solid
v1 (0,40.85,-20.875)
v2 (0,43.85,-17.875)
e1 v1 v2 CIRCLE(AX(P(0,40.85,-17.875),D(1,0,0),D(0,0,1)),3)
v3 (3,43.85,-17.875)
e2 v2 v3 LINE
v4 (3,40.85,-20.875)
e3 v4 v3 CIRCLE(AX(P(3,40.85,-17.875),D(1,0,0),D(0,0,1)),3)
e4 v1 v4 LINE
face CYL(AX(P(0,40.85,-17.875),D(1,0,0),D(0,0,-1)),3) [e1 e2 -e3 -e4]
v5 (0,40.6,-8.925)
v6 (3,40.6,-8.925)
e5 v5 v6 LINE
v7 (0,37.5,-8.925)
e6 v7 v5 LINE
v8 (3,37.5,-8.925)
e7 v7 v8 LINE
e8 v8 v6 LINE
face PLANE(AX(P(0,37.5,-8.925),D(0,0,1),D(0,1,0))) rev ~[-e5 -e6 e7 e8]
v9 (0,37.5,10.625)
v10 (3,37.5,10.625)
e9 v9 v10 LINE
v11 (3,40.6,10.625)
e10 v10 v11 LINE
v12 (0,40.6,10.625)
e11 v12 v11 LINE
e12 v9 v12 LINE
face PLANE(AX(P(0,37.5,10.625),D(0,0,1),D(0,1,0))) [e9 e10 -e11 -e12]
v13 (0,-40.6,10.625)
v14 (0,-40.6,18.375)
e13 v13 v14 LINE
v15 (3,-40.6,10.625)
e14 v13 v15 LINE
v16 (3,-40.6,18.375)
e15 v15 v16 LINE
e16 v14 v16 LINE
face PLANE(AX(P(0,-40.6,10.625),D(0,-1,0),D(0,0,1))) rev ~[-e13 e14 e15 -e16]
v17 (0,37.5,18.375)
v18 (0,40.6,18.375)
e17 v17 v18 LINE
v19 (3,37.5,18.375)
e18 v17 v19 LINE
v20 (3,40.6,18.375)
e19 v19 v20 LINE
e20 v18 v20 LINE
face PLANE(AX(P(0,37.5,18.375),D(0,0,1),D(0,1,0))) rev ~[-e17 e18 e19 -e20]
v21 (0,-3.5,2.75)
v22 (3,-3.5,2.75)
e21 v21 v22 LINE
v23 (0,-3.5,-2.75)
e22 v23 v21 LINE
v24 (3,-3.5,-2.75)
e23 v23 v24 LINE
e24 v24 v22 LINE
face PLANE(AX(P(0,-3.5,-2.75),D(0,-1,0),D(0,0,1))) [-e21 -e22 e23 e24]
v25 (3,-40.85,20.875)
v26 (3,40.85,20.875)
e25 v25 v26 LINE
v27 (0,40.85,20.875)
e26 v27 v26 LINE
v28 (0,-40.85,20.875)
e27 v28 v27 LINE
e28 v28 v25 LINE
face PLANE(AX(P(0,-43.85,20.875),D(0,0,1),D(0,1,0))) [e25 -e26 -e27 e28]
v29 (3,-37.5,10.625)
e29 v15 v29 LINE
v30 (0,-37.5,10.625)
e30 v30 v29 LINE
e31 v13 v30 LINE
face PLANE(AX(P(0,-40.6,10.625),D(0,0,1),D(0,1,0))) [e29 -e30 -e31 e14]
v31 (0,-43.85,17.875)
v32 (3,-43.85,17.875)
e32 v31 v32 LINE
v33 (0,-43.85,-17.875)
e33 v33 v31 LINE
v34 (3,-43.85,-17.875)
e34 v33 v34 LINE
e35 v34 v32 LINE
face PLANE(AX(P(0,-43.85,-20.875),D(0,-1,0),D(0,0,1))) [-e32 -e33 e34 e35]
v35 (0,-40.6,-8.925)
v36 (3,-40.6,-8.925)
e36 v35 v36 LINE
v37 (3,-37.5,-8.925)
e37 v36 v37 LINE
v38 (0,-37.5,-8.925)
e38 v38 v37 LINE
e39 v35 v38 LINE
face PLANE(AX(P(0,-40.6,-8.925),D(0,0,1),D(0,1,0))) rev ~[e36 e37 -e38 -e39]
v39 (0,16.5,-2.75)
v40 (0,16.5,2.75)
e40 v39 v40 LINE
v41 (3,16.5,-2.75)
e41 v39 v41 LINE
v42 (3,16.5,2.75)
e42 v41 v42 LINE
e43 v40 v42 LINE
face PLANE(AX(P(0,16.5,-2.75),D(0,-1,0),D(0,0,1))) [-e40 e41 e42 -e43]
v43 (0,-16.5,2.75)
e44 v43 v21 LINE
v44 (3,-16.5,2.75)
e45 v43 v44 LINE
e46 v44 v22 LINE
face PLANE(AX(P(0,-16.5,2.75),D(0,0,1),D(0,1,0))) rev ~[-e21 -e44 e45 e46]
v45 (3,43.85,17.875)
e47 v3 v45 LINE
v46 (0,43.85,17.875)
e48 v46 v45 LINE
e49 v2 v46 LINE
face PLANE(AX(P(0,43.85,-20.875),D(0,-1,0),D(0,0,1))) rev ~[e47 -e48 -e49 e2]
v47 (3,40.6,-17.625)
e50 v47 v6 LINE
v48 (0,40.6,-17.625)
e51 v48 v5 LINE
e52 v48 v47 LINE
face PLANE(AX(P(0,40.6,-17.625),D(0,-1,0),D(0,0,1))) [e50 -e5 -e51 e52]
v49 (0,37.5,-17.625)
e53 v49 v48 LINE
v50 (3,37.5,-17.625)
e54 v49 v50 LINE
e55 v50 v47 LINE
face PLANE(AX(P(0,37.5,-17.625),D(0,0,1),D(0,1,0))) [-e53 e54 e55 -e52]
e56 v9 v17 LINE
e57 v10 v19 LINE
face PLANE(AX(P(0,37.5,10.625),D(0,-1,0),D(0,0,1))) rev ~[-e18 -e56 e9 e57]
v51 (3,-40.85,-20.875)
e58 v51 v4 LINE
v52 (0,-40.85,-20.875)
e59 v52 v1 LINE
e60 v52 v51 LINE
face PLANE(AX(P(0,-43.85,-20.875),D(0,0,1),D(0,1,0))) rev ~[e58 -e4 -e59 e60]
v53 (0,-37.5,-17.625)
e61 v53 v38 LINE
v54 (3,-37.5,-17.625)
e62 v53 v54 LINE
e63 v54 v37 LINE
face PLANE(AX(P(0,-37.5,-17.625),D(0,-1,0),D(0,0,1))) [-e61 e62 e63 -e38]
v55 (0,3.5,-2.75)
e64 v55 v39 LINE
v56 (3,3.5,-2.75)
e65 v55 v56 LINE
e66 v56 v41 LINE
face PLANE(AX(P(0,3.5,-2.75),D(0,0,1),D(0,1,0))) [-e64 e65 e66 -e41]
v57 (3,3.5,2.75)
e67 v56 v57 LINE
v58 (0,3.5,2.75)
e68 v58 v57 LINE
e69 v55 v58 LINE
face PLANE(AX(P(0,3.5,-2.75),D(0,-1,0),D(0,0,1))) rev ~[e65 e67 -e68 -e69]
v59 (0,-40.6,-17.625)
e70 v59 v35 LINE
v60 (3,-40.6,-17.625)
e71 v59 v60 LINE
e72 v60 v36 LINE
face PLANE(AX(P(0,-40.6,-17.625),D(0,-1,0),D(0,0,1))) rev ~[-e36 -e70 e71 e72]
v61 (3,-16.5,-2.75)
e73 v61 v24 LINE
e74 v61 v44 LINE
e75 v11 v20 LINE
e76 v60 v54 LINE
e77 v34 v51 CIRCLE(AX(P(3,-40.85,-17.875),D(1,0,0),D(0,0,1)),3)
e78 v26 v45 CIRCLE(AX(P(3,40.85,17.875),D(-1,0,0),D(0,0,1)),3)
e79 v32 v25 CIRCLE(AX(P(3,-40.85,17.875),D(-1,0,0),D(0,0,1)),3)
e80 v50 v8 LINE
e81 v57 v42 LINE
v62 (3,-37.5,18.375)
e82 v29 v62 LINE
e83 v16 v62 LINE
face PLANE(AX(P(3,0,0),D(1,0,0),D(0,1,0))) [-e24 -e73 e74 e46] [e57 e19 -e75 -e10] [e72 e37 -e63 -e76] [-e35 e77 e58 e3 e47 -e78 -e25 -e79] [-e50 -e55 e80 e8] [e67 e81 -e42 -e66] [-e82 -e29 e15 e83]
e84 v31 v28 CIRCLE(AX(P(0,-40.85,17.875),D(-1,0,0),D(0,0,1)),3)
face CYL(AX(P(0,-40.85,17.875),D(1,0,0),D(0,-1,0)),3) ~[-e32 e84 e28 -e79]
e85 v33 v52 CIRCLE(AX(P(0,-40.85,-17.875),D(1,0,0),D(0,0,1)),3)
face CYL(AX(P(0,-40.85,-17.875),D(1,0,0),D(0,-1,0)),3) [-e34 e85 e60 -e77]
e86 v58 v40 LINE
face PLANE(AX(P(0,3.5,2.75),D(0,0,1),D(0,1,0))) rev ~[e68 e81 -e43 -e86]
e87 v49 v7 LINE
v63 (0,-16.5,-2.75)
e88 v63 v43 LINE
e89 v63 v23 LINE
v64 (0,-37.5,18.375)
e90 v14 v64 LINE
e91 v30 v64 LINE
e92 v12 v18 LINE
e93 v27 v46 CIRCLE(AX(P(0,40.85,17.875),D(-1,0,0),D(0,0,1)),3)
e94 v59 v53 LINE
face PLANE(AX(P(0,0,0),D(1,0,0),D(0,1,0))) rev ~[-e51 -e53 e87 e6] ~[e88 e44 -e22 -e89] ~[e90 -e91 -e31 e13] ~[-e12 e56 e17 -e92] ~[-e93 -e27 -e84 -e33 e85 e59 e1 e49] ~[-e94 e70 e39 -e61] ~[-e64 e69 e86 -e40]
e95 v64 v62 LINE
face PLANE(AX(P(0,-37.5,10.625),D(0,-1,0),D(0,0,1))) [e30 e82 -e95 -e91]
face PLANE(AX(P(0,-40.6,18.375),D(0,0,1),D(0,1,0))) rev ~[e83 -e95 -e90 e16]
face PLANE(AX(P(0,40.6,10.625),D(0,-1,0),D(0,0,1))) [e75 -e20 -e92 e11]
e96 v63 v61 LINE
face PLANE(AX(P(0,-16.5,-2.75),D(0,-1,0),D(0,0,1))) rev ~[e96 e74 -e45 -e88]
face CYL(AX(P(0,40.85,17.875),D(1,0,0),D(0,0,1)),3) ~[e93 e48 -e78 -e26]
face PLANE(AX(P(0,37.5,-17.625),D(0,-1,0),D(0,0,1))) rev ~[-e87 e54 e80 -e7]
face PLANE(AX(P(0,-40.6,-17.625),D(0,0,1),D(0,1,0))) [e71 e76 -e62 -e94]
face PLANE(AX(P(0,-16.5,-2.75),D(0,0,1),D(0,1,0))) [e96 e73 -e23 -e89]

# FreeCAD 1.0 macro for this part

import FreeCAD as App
import Part
import Sketcher


def edges_at(feature, points):
    """Names of the edges that pass closest to the given points."""
    edges = feature.Shape.Edges
    near = lambda p: min(range(len(edges)), key=lambda i: edges[i].distToShape(Part.Vertex(*p))[0])
    return sorted({f"Edge{near(p) + 1}" for p in points})


def add_polygon(sketch, points):
    """Adds a closed chain of lines whose ends are joined by coincident constraints."""
    first, n = sketch.GeometryCount, len(points)
    for a, b in zip(points, points[1:] + points[:1]):
        sketch.addGeometry(Part.LineSegment(App.Vector(*a, 0), App.Vector(*b, 0)), False)
    for i in range(n):
        sketch.addConstraint(Sketcher.Constraint("Coincident", first + i, 2, first + (i + 1) % n, 1))

doc = App.newDocument("Part")
body = doc.addObject("PartDesign::Body", "Body")

sketch1 = body.newObject("Sketcher::SketchObject", "Sketch")
sketch1.AttachmentSupport = (doc.getObject("YZ_Plane"), [""])
sketch1.MapMode = "FlatFace"
add_polygon(sketch1, [(-43.9, 20.9), (-43.9, -20.9), (43.9, -20.9), (43.9, 20.9)])
add_polygon(sketch1, [(-37.5, -17.6), (-40.6, -17.6), (-40.6, -8.9), (-37.5, -8.9)])
add_polygon(sketch1, [(-3.5, -2.8), (-16.5, -2.8), (-16.5, 2.8), (-3.5, 2.8)])
add_polygon(sketch1, [(40.6, -17.6), (37.5, -17.6), (37.5, -8.9), (40.6, -8.9)])
add_polygon(sketch1, [(16.5, -2.8), (3.5, -2.8), (3.5, 2.8), (16.5, 2.8)])
add_polygon(sketch1, [(-37.5, 10.6), (-40.6, 10.6), (-40.6, 18.4), (-37.5, 18.4)])
add_polygon(sketch1, [(40.6, 10.6), (37.5, 10.6), (37.5, 18.4), (40.6, 18.4)])
sketch1.addConstraint([
    Sketcher.Constraint("Vertical", 0),
    Sketcher.Constraint("Horizontal", 1),
    Sketcher.Constraint("Vertical", 2),
    Sketcher.Constraint("Horizontal", 3),
    Sketcher.Constraint("Horizontal", 4),
    Sketcher.Constraint("Vertical", 5),
    Sketcher.Constraint("Horizontal", 6),
    Sketcher.Constraint("Vertical", 7),
    Sketcher.Constraint("Horizontal", 8),
    Sketcher.Constraint("Vertical", 9),
    Sketcher.Constraint("Horizontal", 10),
    Sketcher.Constraint("Vertical", 11),
    Sketcher.Constraint("Horizontal", 12),
    Sketcher.Constraint("Vertical", 13),
    Sketcher.Constraint("Horizontal", 14),
    Sketcher.Constraint("Vertical", 15),
    Sketcher.Constraint("Horizontal", 16),
    Sketcher.Constraint("Vertical", 17),
    Sketcher.Constraint("Horizontal", 18),
    Sketcher.Constraint("Vertical", 19),
    Sketcher.Constraint("Horizontal", 20),
    Sketcher.Constraint("Vertical", 21),
    Sketcher.Constraint("Horizontal", 22),
    Sketcher.Constraint("Vertical", 23),
    Sketcher.Constraint("Horizontal", 24),
    Sketcher.Constraint("Vertical", 25),
    Sketcher.Constraint("Horizontal", 26),
    Sketcher.Constraint("Vertical", 27),
    Sketcher.Constraint("Symmetric", 0, 2, 2, 2, -1, 1),
    Sketcher.Constraint("Symmetric", 10, 2, 16, 2, -1, 1),
    Sketcher.Constraint("Symmetric", 8, 2, 18, 2, -1, 1),
    Sketcher.Constraint("Symmetric", 7, 2, 12, 2, -2),
    Sketcher.Constraint("Symmetric", 5, 2, 14, 2, -2),
    Sketcher.Constraint("Symmetric", 23, 2, 24, 2, -2),
    Sketcher.Constraint("Symmetric", 21, 2, 26, 2, -2),
    Sketcher.Constraint("Horizontal", 11, 2, 16, 2),
    Sketcher.Constraint("Vertical", 5, 2, 20, 2),
    Sketcher.Constraint("Vertical", 7, 2, 22, 2),
    Sketcher.Constraint("DistanceX", 8, 2, 8, 1, 13.0),
    Sketcher.Constraint("DistanceX", 1, 1, 1, 2, 87.7),
    Sketcher.Constraint("DistanceX", 4, 2, 4, 1, 3.1),
    Sketcher.Constraint("DistanceY", 5, 1, 5, 2, 8.7),
    Sketcher.Constraint("DistanceY", 9, 1, 9, 2, 5.5),
    Sketcher.Constraint("DistanceX", 6, 2, 8, 2, 21.0),
    Sketcher.Constraint("DistanceX", 11, 2, 12, 2, 41.0),
    Sketcher.Constraint("DistanceY", 0, 2, 0, 1, 41.75),
    Sketcher.Constraint("DistanceY", 21, 1, 21, 2, 7.75),
    Sketcher.Constraint("DistanceY", 4, 2, 3, 2, 38.5),
    Sketcher.Constraint("DistanceY", 21, 2, 3, 2, 2.5),
])
pad1 = body.newObject("PartDesign::Pad", "Pad")
pad1.Profile = sketch1
pad1.Length = 3
doc.recompute()

fillet = body.newObject("PartDesign::Fillet", "Fillet")
fillet.Base = (pad1, edges_at(pad1, [
    (1.5, -43.85, 20.875),
    (1.5, -43.85, -20.875),
    (1.5, 43.85, 20.875),
    (1.5, 43.85, -20.875),
]))
fillet.Radius = 3

doc.recompute()
